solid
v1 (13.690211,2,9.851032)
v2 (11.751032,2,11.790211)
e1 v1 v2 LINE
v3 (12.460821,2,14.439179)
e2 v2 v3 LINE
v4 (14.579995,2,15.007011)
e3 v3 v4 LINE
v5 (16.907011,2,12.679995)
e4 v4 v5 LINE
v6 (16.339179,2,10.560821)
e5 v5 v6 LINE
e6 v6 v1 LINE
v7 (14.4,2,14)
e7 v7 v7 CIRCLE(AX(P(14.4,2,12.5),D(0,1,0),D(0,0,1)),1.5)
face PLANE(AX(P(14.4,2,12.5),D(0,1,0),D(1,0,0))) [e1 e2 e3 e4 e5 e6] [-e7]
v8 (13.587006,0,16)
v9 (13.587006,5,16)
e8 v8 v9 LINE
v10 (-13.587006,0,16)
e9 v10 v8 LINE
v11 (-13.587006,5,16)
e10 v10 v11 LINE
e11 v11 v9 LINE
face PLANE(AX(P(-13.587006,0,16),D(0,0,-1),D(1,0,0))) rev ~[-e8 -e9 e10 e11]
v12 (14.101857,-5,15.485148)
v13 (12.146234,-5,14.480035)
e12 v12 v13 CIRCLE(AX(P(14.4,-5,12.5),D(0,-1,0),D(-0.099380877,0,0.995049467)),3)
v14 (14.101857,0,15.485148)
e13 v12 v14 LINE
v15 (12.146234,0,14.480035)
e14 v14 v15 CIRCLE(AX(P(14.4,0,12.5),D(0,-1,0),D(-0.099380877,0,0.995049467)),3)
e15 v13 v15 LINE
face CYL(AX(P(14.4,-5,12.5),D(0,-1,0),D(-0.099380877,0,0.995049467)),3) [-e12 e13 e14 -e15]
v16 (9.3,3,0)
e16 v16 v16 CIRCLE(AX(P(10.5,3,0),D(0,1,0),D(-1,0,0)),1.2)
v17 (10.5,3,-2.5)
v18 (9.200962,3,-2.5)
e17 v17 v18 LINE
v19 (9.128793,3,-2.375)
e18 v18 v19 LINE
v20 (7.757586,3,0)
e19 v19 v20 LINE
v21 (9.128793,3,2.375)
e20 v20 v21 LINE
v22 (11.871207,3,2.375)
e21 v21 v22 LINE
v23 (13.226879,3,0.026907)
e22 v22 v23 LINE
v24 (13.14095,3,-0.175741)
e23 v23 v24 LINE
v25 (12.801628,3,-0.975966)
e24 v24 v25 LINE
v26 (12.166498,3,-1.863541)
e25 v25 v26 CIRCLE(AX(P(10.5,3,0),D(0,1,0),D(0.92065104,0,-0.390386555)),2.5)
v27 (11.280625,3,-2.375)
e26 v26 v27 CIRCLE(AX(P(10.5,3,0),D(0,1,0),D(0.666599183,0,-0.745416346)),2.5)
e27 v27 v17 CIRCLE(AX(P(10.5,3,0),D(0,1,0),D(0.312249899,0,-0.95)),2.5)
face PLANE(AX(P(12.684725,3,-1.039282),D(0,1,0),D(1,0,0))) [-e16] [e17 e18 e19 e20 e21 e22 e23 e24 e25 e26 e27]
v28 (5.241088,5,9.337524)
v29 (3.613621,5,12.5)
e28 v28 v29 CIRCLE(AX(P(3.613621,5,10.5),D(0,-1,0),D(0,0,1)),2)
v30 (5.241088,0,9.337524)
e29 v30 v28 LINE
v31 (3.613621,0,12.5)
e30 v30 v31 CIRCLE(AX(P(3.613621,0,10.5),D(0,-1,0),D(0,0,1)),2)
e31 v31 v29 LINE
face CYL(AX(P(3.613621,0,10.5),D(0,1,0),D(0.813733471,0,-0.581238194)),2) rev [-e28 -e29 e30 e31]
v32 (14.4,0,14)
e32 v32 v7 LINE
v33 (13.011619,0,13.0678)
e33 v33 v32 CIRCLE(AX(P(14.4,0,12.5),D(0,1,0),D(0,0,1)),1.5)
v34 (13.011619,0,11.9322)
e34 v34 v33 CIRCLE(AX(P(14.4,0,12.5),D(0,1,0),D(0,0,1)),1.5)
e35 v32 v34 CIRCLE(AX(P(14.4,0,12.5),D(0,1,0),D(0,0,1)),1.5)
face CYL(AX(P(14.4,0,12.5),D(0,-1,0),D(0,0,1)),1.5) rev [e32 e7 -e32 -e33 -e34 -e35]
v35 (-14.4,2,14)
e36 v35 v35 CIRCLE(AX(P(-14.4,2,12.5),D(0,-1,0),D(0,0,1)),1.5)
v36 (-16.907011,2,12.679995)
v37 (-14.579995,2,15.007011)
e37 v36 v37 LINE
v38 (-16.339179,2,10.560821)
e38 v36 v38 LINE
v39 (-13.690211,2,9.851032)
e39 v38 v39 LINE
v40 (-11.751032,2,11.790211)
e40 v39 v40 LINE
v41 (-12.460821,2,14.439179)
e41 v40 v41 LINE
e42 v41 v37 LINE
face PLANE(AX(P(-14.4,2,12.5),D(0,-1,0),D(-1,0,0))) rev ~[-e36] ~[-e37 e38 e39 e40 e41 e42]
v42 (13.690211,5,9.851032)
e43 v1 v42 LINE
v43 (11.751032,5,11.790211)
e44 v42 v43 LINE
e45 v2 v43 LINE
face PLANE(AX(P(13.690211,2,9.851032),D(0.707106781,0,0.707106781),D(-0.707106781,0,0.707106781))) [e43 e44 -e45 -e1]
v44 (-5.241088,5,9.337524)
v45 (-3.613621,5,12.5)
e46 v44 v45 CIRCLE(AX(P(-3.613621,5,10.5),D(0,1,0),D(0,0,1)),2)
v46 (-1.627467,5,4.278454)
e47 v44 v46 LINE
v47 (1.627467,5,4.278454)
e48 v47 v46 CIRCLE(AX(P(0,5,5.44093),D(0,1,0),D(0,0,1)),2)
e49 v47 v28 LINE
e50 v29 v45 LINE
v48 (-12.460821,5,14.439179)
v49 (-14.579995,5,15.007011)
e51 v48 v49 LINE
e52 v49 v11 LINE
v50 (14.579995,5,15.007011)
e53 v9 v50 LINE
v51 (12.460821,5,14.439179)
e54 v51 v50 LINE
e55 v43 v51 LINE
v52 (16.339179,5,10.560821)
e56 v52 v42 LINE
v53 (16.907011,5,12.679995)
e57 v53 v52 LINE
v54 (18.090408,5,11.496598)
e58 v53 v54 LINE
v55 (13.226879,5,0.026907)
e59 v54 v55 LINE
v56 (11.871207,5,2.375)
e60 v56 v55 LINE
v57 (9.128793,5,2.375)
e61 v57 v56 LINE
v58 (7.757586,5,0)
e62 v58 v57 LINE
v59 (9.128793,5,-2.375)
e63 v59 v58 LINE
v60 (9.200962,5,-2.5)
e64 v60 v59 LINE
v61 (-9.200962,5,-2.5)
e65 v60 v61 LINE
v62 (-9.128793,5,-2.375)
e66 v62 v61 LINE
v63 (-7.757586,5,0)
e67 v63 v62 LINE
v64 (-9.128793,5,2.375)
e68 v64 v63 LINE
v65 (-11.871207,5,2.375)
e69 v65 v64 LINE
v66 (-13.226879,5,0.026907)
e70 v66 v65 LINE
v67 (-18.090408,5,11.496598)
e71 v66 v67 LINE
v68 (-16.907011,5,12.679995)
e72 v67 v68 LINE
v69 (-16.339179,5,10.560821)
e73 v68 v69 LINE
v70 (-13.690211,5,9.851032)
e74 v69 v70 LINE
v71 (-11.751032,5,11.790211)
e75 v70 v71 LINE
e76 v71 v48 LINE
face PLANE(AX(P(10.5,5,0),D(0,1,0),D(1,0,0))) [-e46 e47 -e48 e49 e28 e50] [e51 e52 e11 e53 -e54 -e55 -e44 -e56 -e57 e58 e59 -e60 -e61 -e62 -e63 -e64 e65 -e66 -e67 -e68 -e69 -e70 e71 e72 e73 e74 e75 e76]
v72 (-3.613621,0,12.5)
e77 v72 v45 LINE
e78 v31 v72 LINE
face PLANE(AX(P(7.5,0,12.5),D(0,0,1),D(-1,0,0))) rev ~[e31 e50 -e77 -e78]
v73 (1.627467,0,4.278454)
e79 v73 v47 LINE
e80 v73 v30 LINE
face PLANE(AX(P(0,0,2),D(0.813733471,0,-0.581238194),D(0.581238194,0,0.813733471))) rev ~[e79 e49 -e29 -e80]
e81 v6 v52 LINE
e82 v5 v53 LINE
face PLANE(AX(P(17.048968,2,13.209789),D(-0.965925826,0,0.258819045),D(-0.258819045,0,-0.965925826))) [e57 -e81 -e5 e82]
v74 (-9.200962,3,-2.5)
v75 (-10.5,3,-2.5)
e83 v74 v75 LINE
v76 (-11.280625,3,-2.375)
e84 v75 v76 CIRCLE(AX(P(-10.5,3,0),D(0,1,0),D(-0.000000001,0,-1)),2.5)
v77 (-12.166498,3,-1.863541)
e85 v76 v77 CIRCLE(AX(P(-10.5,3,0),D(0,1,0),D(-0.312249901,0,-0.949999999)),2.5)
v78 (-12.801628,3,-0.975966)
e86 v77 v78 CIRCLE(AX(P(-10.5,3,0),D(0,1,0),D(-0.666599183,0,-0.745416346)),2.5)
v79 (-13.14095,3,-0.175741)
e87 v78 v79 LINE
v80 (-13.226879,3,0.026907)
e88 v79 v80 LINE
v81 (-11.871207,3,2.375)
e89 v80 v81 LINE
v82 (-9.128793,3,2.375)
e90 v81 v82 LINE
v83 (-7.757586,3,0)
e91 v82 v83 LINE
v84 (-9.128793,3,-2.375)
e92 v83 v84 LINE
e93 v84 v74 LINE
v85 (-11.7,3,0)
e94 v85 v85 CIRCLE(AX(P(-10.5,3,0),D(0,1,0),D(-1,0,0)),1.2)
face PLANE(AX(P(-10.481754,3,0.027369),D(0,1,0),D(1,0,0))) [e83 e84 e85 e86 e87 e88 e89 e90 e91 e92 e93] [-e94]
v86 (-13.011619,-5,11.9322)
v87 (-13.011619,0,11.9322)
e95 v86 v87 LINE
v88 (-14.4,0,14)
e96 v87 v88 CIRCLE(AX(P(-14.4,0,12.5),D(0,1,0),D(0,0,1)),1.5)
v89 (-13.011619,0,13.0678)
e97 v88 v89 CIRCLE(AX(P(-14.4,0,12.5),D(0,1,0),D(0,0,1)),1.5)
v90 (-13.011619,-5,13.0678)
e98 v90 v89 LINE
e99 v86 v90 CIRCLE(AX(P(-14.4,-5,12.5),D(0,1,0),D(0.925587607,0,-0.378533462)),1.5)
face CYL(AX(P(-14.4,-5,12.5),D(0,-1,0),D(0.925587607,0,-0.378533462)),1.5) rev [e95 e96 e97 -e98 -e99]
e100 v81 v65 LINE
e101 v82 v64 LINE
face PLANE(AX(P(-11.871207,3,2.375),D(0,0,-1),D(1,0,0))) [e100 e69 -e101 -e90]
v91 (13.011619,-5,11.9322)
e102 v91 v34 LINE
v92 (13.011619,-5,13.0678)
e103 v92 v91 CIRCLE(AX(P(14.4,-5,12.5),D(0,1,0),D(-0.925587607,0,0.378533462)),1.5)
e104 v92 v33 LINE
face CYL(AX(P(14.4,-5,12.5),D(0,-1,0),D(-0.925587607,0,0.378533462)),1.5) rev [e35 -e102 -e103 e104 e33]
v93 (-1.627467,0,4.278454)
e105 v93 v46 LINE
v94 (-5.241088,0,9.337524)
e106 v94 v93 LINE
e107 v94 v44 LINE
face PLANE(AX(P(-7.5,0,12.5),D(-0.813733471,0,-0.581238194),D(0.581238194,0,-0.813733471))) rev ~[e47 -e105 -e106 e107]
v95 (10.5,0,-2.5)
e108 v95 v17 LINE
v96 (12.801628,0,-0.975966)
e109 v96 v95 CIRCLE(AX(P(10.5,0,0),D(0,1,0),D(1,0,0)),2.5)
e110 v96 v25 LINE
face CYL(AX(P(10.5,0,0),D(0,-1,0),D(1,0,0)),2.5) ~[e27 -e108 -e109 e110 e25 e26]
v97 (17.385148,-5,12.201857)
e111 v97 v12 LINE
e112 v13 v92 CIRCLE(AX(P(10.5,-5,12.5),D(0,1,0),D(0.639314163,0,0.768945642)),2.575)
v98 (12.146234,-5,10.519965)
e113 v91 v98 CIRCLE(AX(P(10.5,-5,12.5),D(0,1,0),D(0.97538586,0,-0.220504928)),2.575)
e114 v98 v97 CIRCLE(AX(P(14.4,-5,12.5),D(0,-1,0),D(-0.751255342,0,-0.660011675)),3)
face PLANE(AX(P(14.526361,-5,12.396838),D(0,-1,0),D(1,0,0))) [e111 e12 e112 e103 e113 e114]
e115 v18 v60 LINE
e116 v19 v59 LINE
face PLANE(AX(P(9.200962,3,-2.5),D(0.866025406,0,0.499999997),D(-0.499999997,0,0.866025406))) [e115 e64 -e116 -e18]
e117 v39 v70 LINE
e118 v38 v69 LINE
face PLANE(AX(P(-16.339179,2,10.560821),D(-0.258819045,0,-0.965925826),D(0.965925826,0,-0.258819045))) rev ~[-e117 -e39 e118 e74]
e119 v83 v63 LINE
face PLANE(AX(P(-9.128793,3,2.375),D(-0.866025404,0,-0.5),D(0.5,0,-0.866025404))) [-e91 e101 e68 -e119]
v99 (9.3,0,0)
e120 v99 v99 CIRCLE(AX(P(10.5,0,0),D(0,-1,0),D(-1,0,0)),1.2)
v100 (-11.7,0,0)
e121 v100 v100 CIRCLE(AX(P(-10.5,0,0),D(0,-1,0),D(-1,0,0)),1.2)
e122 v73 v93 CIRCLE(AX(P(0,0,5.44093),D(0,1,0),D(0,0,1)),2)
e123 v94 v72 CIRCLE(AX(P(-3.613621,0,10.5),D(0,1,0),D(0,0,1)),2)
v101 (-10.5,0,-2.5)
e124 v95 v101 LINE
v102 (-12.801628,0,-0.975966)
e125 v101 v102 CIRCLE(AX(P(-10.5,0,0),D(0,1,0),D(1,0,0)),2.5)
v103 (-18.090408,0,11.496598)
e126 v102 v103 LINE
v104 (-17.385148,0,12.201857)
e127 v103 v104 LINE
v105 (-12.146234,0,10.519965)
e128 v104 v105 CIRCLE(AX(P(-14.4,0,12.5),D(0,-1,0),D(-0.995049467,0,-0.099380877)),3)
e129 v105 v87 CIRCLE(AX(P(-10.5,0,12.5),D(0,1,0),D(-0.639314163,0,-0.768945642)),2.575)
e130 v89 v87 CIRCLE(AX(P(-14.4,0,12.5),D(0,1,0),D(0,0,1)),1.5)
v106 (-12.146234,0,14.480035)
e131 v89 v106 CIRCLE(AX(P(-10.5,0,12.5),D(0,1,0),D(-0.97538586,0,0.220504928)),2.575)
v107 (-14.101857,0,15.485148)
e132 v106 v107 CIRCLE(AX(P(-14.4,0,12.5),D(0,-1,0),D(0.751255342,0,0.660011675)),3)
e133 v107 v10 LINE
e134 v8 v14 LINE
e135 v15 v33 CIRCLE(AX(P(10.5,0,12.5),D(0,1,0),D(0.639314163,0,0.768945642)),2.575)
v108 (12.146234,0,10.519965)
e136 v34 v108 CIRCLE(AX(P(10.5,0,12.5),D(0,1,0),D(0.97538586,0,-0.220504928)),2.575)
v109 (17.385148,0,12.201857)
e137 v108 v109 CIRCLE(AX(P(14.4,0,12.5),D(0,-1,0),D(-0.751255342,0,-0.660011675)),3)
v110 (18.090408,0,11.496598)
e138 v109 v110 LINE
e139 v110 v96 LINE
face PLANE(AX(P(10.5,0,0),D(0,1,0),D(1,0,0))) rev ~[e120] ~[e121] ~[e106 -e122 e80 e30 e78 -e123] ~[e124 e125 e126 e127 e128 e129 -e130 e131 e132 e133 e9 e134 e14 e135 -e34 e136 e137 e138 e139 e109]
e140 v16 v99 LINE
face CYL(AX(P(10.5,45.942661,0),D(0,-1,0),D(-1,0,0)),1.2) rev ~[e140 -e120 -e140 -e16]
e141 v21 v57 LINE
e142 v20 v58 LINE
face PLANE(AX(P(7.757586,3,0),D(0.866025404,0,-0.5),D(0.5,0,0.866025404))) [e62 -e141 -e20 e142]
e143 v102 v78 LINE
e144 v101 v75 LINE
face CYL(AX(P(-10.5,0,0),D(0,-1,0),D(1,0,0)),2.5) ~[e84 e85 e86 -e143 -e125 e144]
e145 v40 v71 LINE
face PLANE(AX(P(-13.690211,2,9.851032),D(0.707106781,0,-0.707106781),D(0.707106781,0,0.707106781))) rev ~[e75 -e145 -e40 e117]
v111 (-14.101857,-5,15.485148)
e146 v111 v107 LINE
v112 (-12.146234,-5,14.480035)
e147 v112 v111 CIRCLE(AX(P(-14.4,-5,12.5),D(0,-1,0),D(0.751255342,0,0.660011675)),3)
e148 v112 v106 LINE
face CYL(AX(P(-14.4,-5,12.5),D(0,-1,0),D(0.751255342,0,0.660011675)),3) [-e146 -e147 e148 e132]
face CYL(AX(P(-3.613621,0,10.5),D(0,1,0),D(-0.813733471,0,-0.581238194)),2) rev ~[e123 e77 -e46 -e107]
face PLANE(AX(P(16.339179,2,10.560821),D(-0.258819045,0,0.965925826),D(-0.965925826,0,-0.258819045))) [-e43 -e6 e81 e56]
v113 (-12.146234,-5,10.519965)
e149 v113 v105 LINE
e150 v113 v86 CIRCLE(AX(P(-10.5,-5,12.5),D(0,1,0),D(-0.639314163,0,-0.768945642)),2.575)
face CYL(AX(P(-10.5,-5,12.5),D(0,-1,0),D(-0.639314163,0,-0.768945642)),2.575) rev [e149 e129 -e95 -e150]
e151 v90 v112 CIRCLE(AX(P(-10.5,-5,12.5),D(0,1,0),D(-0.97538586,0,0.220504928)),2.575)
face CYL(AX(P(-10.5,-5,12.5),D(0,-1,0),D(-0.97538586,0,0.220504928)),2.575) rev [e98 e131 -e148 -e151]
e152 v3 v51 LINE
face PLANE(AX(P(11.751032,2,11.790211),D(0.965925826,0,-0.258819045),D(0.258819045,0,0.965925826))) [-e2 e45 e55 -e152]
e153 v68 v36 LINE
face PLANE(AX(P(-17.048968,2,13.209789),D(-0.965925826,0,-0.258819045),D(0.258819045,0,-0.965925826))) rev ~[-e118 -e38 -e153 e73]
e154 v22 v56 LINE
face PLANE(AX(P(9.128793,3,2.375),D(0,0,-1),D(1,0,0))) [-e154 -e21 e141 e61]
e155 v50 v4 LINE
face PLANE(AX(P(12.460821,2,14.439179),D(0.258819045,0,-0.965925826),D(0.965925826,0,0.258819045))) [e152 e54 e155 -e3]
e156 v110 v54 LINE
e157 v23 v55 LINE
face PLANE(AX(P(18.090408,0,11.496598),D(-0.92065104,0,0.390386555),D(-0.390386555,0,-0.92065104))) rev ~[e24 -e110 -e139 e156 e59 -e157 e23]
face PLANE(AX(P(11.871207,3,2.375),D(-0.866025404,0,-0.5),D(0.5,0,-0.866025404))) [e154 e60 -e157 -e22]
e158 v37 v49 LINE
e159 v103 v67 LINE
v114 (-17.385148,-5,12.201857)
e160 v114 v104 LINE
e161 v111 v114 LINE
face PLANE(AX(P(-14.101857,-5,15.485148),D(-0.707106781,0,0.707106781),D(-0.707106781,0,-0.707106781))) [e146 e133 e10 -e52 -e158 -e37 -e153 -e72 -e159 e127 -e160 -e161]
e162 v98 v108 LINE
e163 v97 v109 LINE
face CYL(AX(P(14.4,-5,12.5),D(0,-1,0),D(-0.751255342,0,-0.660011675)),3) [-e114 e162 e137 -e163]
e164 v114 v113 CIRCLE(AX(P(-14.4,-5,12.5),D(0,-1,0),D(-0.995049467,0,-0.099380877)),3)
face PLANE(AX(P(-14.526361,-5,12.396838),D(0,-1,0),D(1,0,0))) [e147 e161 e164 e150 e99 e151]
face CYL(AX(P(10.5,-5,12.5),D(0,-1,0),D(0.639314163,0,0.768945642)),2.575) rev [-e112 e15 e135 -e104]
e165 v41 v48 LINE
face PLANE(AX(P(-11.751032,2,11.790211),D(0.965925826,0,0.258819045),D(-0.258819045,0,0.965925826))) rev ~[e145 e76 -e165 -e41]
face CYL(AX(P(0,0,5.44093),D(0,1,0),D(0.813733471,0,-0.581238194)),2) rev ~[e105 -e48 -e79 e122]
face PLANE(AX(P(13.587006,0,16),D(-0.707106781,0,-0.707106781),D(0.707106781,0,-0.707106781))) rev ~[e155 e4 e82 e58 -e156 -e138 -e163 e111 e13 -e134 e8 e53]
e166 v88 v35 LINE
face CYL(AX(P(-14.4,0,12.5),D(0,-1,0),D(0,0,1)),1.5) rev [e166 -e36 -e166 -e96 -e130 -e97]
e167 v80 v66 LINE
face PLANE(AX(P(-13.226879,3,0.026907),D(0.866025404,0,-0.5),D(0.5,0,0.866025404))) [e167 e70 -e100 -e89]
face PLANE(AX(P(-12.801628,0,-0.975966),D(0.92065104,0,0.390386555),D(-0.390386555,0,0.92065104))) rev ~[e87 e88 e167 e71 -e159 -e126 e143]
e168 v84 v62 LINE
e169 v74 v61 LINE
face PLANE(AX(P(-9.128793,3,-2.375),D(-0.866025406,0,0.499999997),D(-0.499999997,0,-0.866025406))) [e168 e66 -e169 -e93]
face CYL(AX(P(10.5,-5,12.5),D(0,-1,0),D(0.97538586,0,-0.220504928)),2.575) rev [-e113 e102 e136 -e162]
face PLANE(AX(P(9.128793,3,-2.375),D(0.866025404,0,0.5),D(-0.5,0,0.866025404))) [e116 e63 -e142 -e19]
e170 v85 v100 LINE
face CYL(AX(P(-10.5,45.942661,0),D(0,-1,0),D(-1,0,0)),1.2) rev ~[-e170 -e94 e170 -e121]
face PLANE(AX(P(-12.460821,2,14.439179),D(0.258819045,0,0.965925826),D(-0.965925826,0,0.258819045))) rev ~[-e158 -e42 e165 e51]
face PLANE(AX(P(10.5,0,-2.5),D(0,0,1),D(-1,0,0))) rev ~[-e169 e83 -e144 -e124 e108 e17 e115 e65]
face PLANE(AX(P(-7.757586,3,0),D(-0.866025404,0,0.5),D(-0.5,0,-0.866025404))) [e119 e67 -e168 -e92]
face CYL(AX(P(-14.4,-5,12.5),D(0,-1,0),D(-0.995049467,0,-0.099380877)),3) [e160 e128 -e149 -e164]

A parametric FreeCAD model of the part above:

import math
import FreeCAD as App
import Part
import Sketcher

V = App.Vector
Q = App.Units.Quantity


def edges_at(feature, points):
    """Names of the edges that pass closest to the given points."""
    edges = feature.Shape.Edges
    near = lambda p: min(range(len(edges)), key=lambda i: edges[i].distToShape(Part.Vertex(*p))[0])
    return sorted({f"Edge{near(p) + 1}" for p in points})

doc = App.newDocument("Part")
params = doc.addObject("Spreadsheet::Sheet", "Params")
for row, (alias, value) in enumerate([
    ("sketch1_diameter", "3 mm"),
    ("sketch1_radius", "2.5 mm"),
    ("sketch1_width", "21 mm"),
    ("sketch1_width2", "15 mm"),
    ("pad1_length", "5 mm"),
    ("sketch2_diameter", "2.4 mm"),
    ("hole_diameter", "2.4 mm"),
    ("fillet_radius", "2 mm"),
    ("sketch3_radius", "3 mm"),
    ("sketch3_radius2", "1.5 mm"),
    ("pad2_length", "5 mm"),
    ("sketch4_diameter", "3 mm"),
    ("pocket1_length", "3 mm"),
    ("sketch5_diameter", "2.4 mm"),
    ("sketch5_radius", "2.5 mm"),
    ("pocket2_length", "2 mm"),
], start=1):
    params.set(f"A{row}", alias)
    params.set(f"B{row}", "=" + value)
    params.setAlias(f"B{row}", alias)

body = doc.addObject("PartDesign::Body", "Body")

sketch1 = body.newObject("Sketcher::SketchObject", "Sketch")
sketch1.AttachmentSupport = (doc.getObject("XZ_Plane"), [""])
sketch1.MapMode = "FlatFace"
sketch1.addGeometry(Part.LineSegment(V(10.5, -2.5, 0), V(-10.5, -2.5, 0)), False)
sketch1.addGeometry(Part.ArcOfCircle(Part.Circle(V(-10.5, 0, 0), V(0, 0, 1), 2.5), math.radians(-157), math.radians(-90)), False)
sketch1.addGeometry(Part.LineSegment(V(-12.8, -1, 0), V(-18.1, 11.5, 0)), False)
sketch1.addGeometry(Part.LineSegment(V(-18.1, 11.5, 0), V(-13.6, 16, 0)), False)
sketch1.addGeometry(Part.LineSegment(V(-13.6, 16, 0), V(13.6, 16, 0)), False)
sketch1.addGeometry(Part.LineSegment(V(13.6, 16, 0), V(18.1, 11.5, 0)), False)
sketch1.addGeometry(Part.LineSegment(V(18.1, 11.5, 0), V(12.8, -1, 0)), False)
sketch1.addGeometry(Part.ArcOfCircle(Part.Circle(V(10.5, 0, 0), V(0, 0, 1), 2.5), math.radians(-90), math.radians(-23)), False)
sketch1.addGeometry(Part.Circle(V(-14.4, 12.5, 0), V(0, 0, 1), 1.5), False)
sketch1.addGeometry(Part.Circle(V(14.4, 12.5, 0), V(0, 0, 1), 1.5), False)
sketch1.addGeometry(Part.LineSegment(V(7.5, 12.5, 0), V(-7.5, 12.5, 0)), False)
sketch1.addGeometry(Part.LineSegment(V(-7.5, 12.5, 0), V(0, 2, 0)), False)
sketch1.addGeometry(Part.LineSegment(V(0, 2, 0), V(7.5, 12.5, 0)), False)
sketch1.addConstraint(Sketcher.Constraint("Tangent", 0, 2, 1, 2))
sketch1.addConstraint(Sketcher.Constraint("Tangent", 1, 1, 2, 1))
sketch1.addConstraint(Sketcher.Constraint("Coincident", 2, 2, 3, 1))
sketch1.addConstraint(Sketcher.Constraint("Coincident", 3, 2, 4, 1))
sketch1.addConstraint(Sketcher.Constraint("Coincident", 4, 2, 5, 1))
sketch1.addConstraint(Sketcher.Constraint("Coincident", 5, 2, 6, 1))
sketch1.addConstraint(Sketcher.Constraint("Tangent", 6, 2, 7, 2))
sketch1.addConstraint(Sketcher.Constraint("Tangent", 7, 1, 0, 1))
sketch1.addConstraint(Sketcher.Constraint("Coincident", 10, 2, 11, 1))
sketch1.addConstraint(Sketcher.Constraint("Coincident", 11, 2, 12, 1))
sketch1.addConstraint(Sketcher.Constraint("Coincident", 12, 2, 10, 1))
sketch1.addConstraint(Sketcher.Constraint("Horizontal", 0))
sketch1.addConstraint(Sketcher.Constraint("Horizontal", 4))
sketch1.addConstraint(Sketcher.Constraint("Horizontal", 10))
sketch1.addConstraint(Sketcher.Constraint("Equal", 1, 7))
sketch1.addConstraint(Sketcher.Constraint("Equal", 8, 9))
sketch1.addConstraint(Sketcher.Constraint("Symmetric", 1, 3, 7, 3, -1, 1))
sketch1.addConstraint(Sketcher.Constraint("Symmetric", 8, 3, 9, 3, -2))
sketch1.addConstraint(Sketcher.Constraint("Symmetric", 2, 2, 5, 2, -2))
sketch1.addConstraint(Sketcher.Constraint("PointOnObject", 11, 2, -2))
sketch1.addConstraint(Sketcher.Constraint("Perpendicular", 3, 5))
sketch1.addConstraint(Sketcher.Constraint("Horizontal", 9, 3, 10, 2))
sketch1.addConstraint(Sketcher.Constraint("Equal", 3, 5))
sketch1.addConstraint(Sketcher.Constraint("Equal", 11, 12))
sketch1.addConstraint(Sketcher.Constraint("Diameter", 8, 3.0))
sketch1.addConstraint(Sketcher.Constraint("Radius", 1, 2.5))
sketch1.addConstraint(Sketcher.Constraint("DistanceX", 0, 2, 0, 1, 21.0))
sketch1.addConstraint(Sketcher.Constraint("DistanceX", 10, 2, 10, 1, 15.0))
sketch1.addConstraint(Sketcher.Constraint("DistanceY", -1, 1, 3, 2, 16.0))
sketch1.addConstraint(Sketcher.Constraint("DistanceY", -1, 1, 11, 2, 2.0))
sketch1.addConstraint(Sketcher.Constraint("DistanceY", 0, 2, 8, 3, 15.0))
sketch1.addConstraint(Sketcher.Constraint("DistanceX", 8, 3, -1, 1, 14.4))
sketch1.addConstraint(Sketcher.Constraint("DistanceX", 4, 1, 4, 2, 27.174012))
sketch1.addConstraint(Sketcher.Constraint("DistanceX", 2, 2, -1, 1, 18.090408))
sketch1.setExpression("Constraints[24]", "Params.sketch1_diameter")
sketch1.setExpression("Constraints[25]", "Params.sketch1_radius")
sketch1.setExpression("Constraints[26]", "Params.sketch1_width")
sketch1.setExpression("Constraints[27]", "Params.sketch1_width2")
pad1 = body.newObject("PartDesign::Pad", "Pad")
pad1.Profile = sketch1
pad1.setExpression("Length", "Params.pad1_length")
pad1.Reversed = True

sketch2 = body.newObject("Sketcher::SketchObject", "Sketch001")
sketch2.AttachmentSupport = (doc.getObject("XZ_Plane"), [""])
sketch2.MapMode = "FlatFace"
sketch2.AttachmentOffset = App.Placement(V(0, 0, -5), App.Rotation())
sketch2.addGeometry(Part.Circle(V(-10.5, 0, 0), V(0, 0, 1), 1.2), False)
sketch2.addGeometry(Part.Circle(V(10.5, 0, 0), V(0, 0, 1), 1.2), False)
sketch2.addConstraint(Sketcher.Constraint("Equal", 0, 1))
sketch2.addConstraint(Sketcher.Constraint("Symmetric", 0, 3, 1, 3, -1, 1))
sketch2.addConstraint(Sketcher.Constraint("PointOnObject", 0, 3, -1))
sketch2.addConstraint(Sketcher.Constraint("Diameter", 0, 2.4))
sketch2.addConstraint(Sketcher.Constraint("DistanceX", 0, 3, 1, 3, 21.0))
sketch2.setExpression("Constraints[3]", "Params.sketch2_diameter")
doc.recompute()
hole = body.newObject("PartDesign::Hole", "Hole")
hole.Profile = sketch2
hole.ThreadType = "None"
hole.setExpression("Diameter", "Params.hole_diameter")
hole.DepthType = "ThroughAll"
hole.Reversed = True
doc.recompute()

fillet = body.newObject("PartDesign::Fillet", "Fillet")
fillet.Base = (hole, edges_at(hole, [(0, 2.5, 2), (-7.5, 2.5, 12.5), (7.5, 2.5, 12.5)]))
fillet.setExpression("Radius", "Params.fillet_radius")

sketch3 = body.newObject("Sketcher::SketchObject", "Sketch002")
sketch3.AttachmentSupport = (doc.getObject("XZ_Plane"), [""])
sketch3.MapMode = "FlatFace"
sketch3.AttachmentOffset = App.Placement(V(0, 0, 5), App.Rotation())
sketch3.addGeometry(Part.LineSegment(V(-14.1, 15.5, 0), V(-17.4, 12.2, 0)), False)
sketch3.addGeometry(Part.ArcOfCircle(Part.Circle(V(-14.4, 12.5, 0), V(0, 0, 1), 3), math.radians(-174), math.radians(-41)), False)
sketch3.addGeometry(Part.ArcOfCircle(Part.Circle(V(-10.5, 12.5, 0), V(0, 0, 1), 2.6), math.radians(-167), math.radians(-130)), False)
sketch3.addGeometry(Part.ArcOfCircle(Part.Circle(V(-14.4, 12.5, 0), V(0, 0, 1), 1.5), math.radians(22), math.radians(338)), False)
sketch3.addGeometry(Part.ArcOfCircle(Part.Circle(V(-10.5, 12.5, 0), V(0, 0, 1), 2.6), math.radians(130), math.radians(167)), False)
sketch3.addGeometry(Part.ArcOfCircle(Part.Circle(V(-14.4, 12.5, 0), V(0, 0, 1), 3), math.radians(41), math.radians(84)), False)
sketch3.addGeometry(Part.ArcOfCircle(Part.Circle(V(14.4, 12.5, 0), V(0, 0, 1), 3), math.radians(-139), math.radians(-6)), False)
sketch3.addGeometry(Part.LineSegment(V(17.4, 12.2, 0), V(14.1, 15.5, 0)), False)
sketch3.addGeometry(Part.ArcOfCircle(Part.Circle(V(14.4, 12.5, 0), V(0, 0, 1), 3), math.radians(96), math.radians(139)), False)
sketch3.addGeometry(Part.ArcOfCircle(Part.Circle(V(10.5, 12.5, 0), V(0, 0, 1), 2.6), math.radians(13), math.radians(50)), False)
sketch3.addGeometry(Part.ArcOfCircle(Part.Circle(V(14.4, 12.5, 0), V(0, 0, 1), 1.5), math.radians(-158), math.radians(158)), False)
sketch3.addGeometry(Part.ArcOfCircle(Part.Circle(V(10.5, 12.5, 0), V(0, 0, 1), 2.6), math.radians(-50), math.radians(-13)), False)
sketch3.addConstraint(Sketcher.Constraint("Coincident", 0, 2, 1, 1))
sketch3.addConstraint(Sketcher.Constraint("Coincident", 1, 2, 2, 2))
sketch3.addConstraint(Sketcher.Constraint("Coincident", 2, 1, 3, 2))
sketch3.addConstraint(Sketcher.Constraint("Coincident", 3, 1, 4, 2))
sketch3.addConstraint(Sketcher.Constraint("Coincident", 4, 1, 5, 1))
sketch3.addConstraint(Sketcher.Constraint("Coincident", 5, 2, 0, 1))
sketch3.addConstraint(Sketcher.Constraint("Coincident", 6, 2, 7, 1))
sketch3.addConstraint(Sketcher.Constraint("Coincident", 7, 2, 8, 1))
sketch3.addConstraint(Sketcher.Constraint("Coincident", 8, 2, 9, 2))
sketch3.addConstraint(Sketcher.Constraint("Coincident", 9, 1, 10, 2))
sketch3.addConstraint(Sketcher.Constraint("Coincident", 10, 1, 11, 2))
sketch3.addConstraint(Sketcher.Constraint("Coincident", 11, 1, 6, 1))
sketch3.addConstraint(Sketcher.Constraint("Coincident", 3, 3, 1, 3))
sketch3.addConstraint(Sketcher.Constraint("Coincident", 4, 3, 2, 3))
sketch3.addConstraint(Sketcher.Constraint("Coincident", 5, 3, 1, 3))
sketch3.addConstraint(Sketcher.Constraint("Coincident", 8, 3, 6, 3))
sketch3.addConstraint(Sketcher.Constraint("Coincident", 10, 3, 6, 3))
sketch3.addConstraint(Sketcher.Constraint("Coincident", 11, 3, 9, 3))
sketch3.addConstraint(Sketcher.Constraint("Equal", 2, 4))
sketch3.addConstraint(Sketcher.Constraint("Equal", 1, 5))
sketch3.addConstraint(Sketcher.Constraint("Equal", 5, 6))
sketch3.addConstraint(Sketcher.Constraint("Equal", 6, 8))
sketch3.addConstraint(Sketcher.Constraint("Equal", 4, 9))
sketch3.addConstraint(Sketcher.Constraint("Equal", 3, 10))
sketch3.addConstraint(Sketcher.Constraint("Equal", 9, 11))
sketch3.addConstraint(Sketcher.Constraint("Symmetric", 1, 3, 6, 3, -2))
sketch3.addConstraint(Sketcher.Constraint("Symmetric", 2, 3, 9, 3, -2))
sketch3.addConstraint(Sketcher.Constraint("Perpendicular", 0, 7))
sketch3.addConstraint(Sketcher.Constraint("Horizontal", 1, 3, 2, 3))
sketch3.addConstraint(Sketcher.Constraint("Horizontal", 0, 2, 6, 2))
sketch3.addConstraint(Sketcher.Constraint("Horizontal", 5, 2, 7, 2))
sketch3.addConstraint(Sketcher.Constraint("Radius", 1, 3.0))
sketch3.addConstraint(Sketcher.Constraint("Radius", 3, 1.5))
sketch3.addConstraint(Sketcher.Constraint("Radius", 2, 2.575))
sketch3.addConstraint(Sketcher.Constraint("DistanceX", 2, 3, 9, 3, 21.0))
sketch3.addConstraint(Sketcher.Constraint("DistanceX", 1, 3, -1, 1, 14.4))
sketch3.addConstraint(Sketcher.Constraint("DistanceY", -1, 1, 1, 3, 12.5))
sketch3.addConstraint(Sketcher.Constraint("DistanceX", 0, 2, -1, 1, 17.385148))
sketch3.setExpression("Constraints[31]", "Params.sketch3_radius")
sketch3.setExpression("Constraints[32]", "Params.sketch3_radius2")
pad2 = body.newObject("PartDesign::Pad", "Pad001")
pad2.Profile = sketch3
pad2.setExpression("Length", "Params.pad2_length")
pad2.Reversed = True

sketch4 = body.newObject("Sketcher::SketchObject", "Sketch003")
sketch4.AttachmentSupport = (doc.getObject("XZ_Plane"), [""])
sketch4.MapMode = "FlatFace"
sketch4.AttachmentOffset = App.Placement(V(0, 0, -2), App.Rotation())
sketch4.addGeometry(Part.LineSegment(V(15.1, 15.1, 0), V(17, 13.2, 0)), False)
sketch4.addGeometry(Part.LineSegment(V(17, 13.2, 0), V(16.3, 10.6, 0)), False)
sketch4.addGeometry(Part.LineSegment(V(16.3, 10.6, 0), V(13.7, 9.9, 0)), False)
sketch4.addGeometry(Part.LineSegment(V(13.7, 9.9, 0), V(11.8, 11.8, 0)), False)
sketch4.addGeometry(Part.LineSegment(V(11.8, 11.8, 0), V(12.5, 14.4, 0)), False)
sketch4.addGeometry(Part.LineSegment(V(12.5, 14.4, 0), V(15.1, 15.1, 0)), False)
sketch4.addGeometry(Part.Circle(V(14.4, 12.5, 0), V(0, 0, 1), 1.5), False)
sketch4.addGeometry(Part.LineSegment(V(-15.1, 15.1, 0), V(-12.5, 14.4, 0)), False)
sketch4.addGeometry(Part.LineSegment(V(-12.5, 14.4, 0), V(-11.8, 11.8, 0)), False)
sketch4.addGeometry(Part.LineSegment(V(-11.8, 11.8, 0), V(-13.7, 9.9, 0)), False)
sketch4.addGeometry(Part.LineSegment(V(-13.7, 9.9, 0), V(-16.3, 10.6, 0)), False)
sketch4.addGeometry(Part.LineSegment(V(-16.3, 10.6, 0), V(-17, 13.2, 0)), False)
sketch4.addGeometry(Part.LineSegment(V(-17, 13.2, 0), V(-15.1, 15.1, 0)), False)
sketch4.addConstraint(Sketcher.Constraint("Coincident", 0, 2, 1, 1))
sketch4.addConstraint(Sketcher.Constraint("Coincident", 1, 2, 2, 1))
sketch4.addConstraint(Sketcher.Constraint("Coincident", 2, 2, 3, 1))
sketch4.addConstraint(Sketcher.Constraint("Coincident", 3, 2, 4, 1))
sketch4.addConstraint(Sketcher.Constraint("Coincident", 4, 2, 5, 1))
sketch4.addConstraint(Sketcher.Constraint("Coincident", 5, 2, 0, 1))
sketch4.addConstraint(Sketcher.Constraint("Coincident", 7, 2, 8, 1))
sketch4.addConstraint(Sketcher.Constraint("Coincident", 8, 2, 9, 1))
sketch4.addConstraint(Sketcher.Constraint("Coincident", 9, 2, 10, 1))
sketch4.addConstraint(Sketcher.Constraint("Coincident", 10, 2, 11, 1))
sketch4.addConstraint(Sketcher.Constraint("Coincident", 11, 2, 12, 1))
sketch4.addConstraint(Sketcher.Constraint("Coincident", 12, 2, 7, 1))
sketch4.addConstraint(Sketcher.Constraint("Symmetric", 4, 2, 7, 2, -2))
sketch4.addConstraint(Sketcher.Constraint("Symmetric", 3, 2, 8, 2, -2))
sketch4.addConstraint(Sketcher.Constraint("Symmetric", 2, 2, 9, 2, -2))
sketch4.addConstraint(Sketcher.Constraint("Symmetric", 1, 2, 10, 2, -2))
sketch4.addConstraint(Sketcher.Constraint("Symmetric", 0, 2, 11, 2, -2))
sketch4.addConstraint(Sketcher.Constraint("Symmetric", 5, 2, 12, 2, -2))
sketch4.addConstraint(Sketcher.Constraint("Parallel", 0, 3))
sketch4.addConstraint(Sketcher.Constraint("Parallel", 1, 4))
sketch4.addConstraint(Sketcher.Constraint("Parallel", 2, 5))
sketch4.addConstraint(Sketcher.Constraint("Perpendicular", 4, 7))
sketch4.addConstraint(Sketcher.Constraint("Perpendicular", 3, 9))
sketch4.addConstraint(Sketcher.Constraint("Equal", 0, 1))
sketch4.addConstraint(Sketcher.Constraint("Equal", 1, 2))
sketch4.addConstraint(Sketcher.Constraint("Equal", 2, 3))
sketch4.addConstraint(Sketcher.Constraint("Diameter", 6, 3.0))
sketch4.addConstraint(Sketcher.Constraint("Angle", 1, Q("-105 deg")))
sketch4.addConstraint(Sketcher.Constraint("DistanceX", -1, 1, 6, 3, 14.4))
sketch4.addConstraint(Sketcher.Constraint("DistanceY", -1, 1, 6, 3, 12.5))
sketch4.addConstraint(Sketcher.Constraint("DistanceX", 10, 2, 4, 2, 28.8))
sketch4.addConstraint(Sketcher.Constraint("DistanceX", -1, 1, 0, 2, 17.048968))
sketch4.addConstraint(Sketcher.Constraint("DistanceY", -1, 1, 0, 2, 13.209789))
sketch4.setExpression("Constraints[26]", "Params.sketch4_diameter")
pocket1 = body.newObject("PartDesign::Pocket", "Pocket")
pocket1.Profile = sketch4
pocket1.setExpression("Length", "Params.pocket1_length")

sketch5 = body.newObject("Sketcher::SketchObject", "Sketch004")
sketch5.AttachmentSupport = (doc.getObject("XZ_Plane"), [""])
sketch5.MapMode = "FlatFace"
sketch5.AttachmentOffset = App.Placement(V(0, 0, -3), App.Rotation())
sketch5.addGeometry(Part.LineSegment(V(-7.76, 0, 0), V(-9.13, -2.38, 0)), False)
sketch5.addGeometry(Part.LineSegment(V(-9.13, -2.38, 0), V(-9.2, -2.5, 0)), False)
sketch5.addGeometry(Part.LineSegment(V(-9.2, -2.5, 0), V(-10.5, -2.5, 0)), False)
sketch5.addGeometry(Part.ArcOfCircle(Part.Circle(V(-10.5, 0, 0), V(0, 0, 1), 2.5), math.radians(-108.19), math.radians(-90)), False)
sketch5.addGeometry(Part.ArcOfCircle(Part.Circle(V(-10.5, 0, 0), V(0, 0, 1), 2.5), math.radians(-132), math.radians(-108)), False)
sketch5.addGeometry(Part.ArcOfCircle(Part.Circle(V(-10.5, 0, 0), V(0, 0, 1), 2.5), math.radians(-157), math.radians(-132)), False)
sketch5.addGeometry(Part.LineSegment(V(-12.8, -0.98, 0), V(-13.14, -0.18, 0)), False)
sketch5.addGeometry(Part.LineSegment(V(-13.14, -0.18, 0), V(-13.23, 0.03, 0)), False)
sketch5.addGeometry(Part.LineSegment(V(-13.23, 0.03, 0), V(-11.87, 2.38, 0)), False)
sketch5.addGeometry(Part.LineSegment(V(-11.87, 2.38, 0), V(-9.13, 2.38, 0)), False)
sketch5.addGeometry(Part.LineSegment(V(-9.13, 2.38, 0), V(-7.76, 0, 0)), False)
sketch5.addGeometry(Part.Circle(V(-10.5, 0, 0), V(0, 0, 1), 1.2), False)
sketch5.addGeometry(Part.LineSegment(V(7.76, 0, 0), V(9.13, 2.38, 0)), False)
sketch5.addGeometry(Part.LineSegment(V(9.13, 2.38, 0), V(11.87, 2.38, 0)), False)
sketch5.addGeometry(Part.LineSegment(V(11.87, 2.38, 0), V(13.23, 0.03, 0)), False)
sketch5.addGeometry(Part.LineSegment(V(13.23, 0.03, 0), V(13.14, -0.18, 0)), False)
sketch5.addGeometry(Part.LineSegment(V(13.14, -0.18, 0), V(12.8, -0.98, 0)), False)
sketch5.addGeometry(Part.ArcOfCircle(Part.Circle(V(10.5, 0, 0), V(0, 0, 1), 2.5), math.radians(-48), math.radians(-23)), False)
sketch5.addGeometry(Part.ArcOfCircle(Part.Circle(V(10.5, 0, 0), V(0, 0, 1), 2.5), math.radians(-72), math.radians(-48)), False)
sketch5.addGeometry(Part.ArcOfCircle(Part.Circle(V(10.5, 0, 0), V(0, 0, 1), 2.5), math.radians(-90), math.radians(-71.81)), False)
sketch5.addGeometry(Part.LineSegment(V(10.5, -2.5, 0), V(9.2, -2.5, 0)), False)
sketch5.addGeometry(Part.LineSegment(V(9.2, -2.5, 0), V(9.13, -2.38, 0)), False)
sketch5.addGeometry(Part.LineSegment(V(9.13, -2.38, 0), V(7.76, 0, 0)), False)
sketch5.addGeometry(Part.Circle(V(10.5, 0, 0), V(0, 0, 1), 1.2), False)
sketch5.addConstraint(Sketcher.Constraint("Coincident", 0, 2, 1, 1))
sketch5.addConstraint(Sketcher.Constraint("Coincident", 1, 2, 2, 1))
sketch5.addConstraint(Sketcher.Constraint("Tangent", 2, 2, 3, 2))
sketch5.addConstraint(Sketcher.Constraint("Tangent", 3, 1, 4, 2))
sketch5.addConstraint(Sketcher.Constraint("Tangent", 4, 1, 5, 2))
sketch5.addConstraint(Sketcher.Constraint("Tangent", 5, 1, 6, 1))
sketch5.addConstraint(Sketcher.Constraint("Coincident", 6, 2, 7, 1))
sketch5.addConstraint(Sketcher.Constraint("Coincident", 7, 2, 8, 1))
sketch5.addConstraint(Sketcher.Constraint("Coincident", 8, 2, 9, 1))
sketch5.addConstraint(Sketcher.Constraint("Coincident", 9, 2, 10, 1))
sketch5.addConstraint(Sketcher.Constraint("Coincident", 10, 2, 0, 1))
sketch5.addConstraint(Sketcher.Constraint("Coincident", 12, 2, 13, 1))
sketch5.addConstraint(Sketcher.Constraint("Coincident", 13, 2, 14, 1))
sketch5.addConstraint(Sketcher.Constraint("Coincident", 14, 2, 15, 1))
sketch5.addConstraint(Sketcher.Constraint("Coincident", 15, 2, 16, 1))
sketch5.addConstraint(Sketcher.Constraint("Tangent", 16, 2, 17, 2))
sketch5.addConstraint(Sketcher.Constraint("Tangent", 17, 1, 18, 2))
sketch5.addConstraint(Sketcher.Constraint("Tangent", 18, 1, 19, 2))
sketch5.addConstraint(Sketcher.Constraint("Tangent", 19, 1, 20, 1))
sketch5.addConstraint(Sketcher.Constraint("Coincident", 20, 2, 21, 1))
sketch5.addConstraint(Sketcher.Constraint("Coincident", 21, 2, 22, 1))
sketch5.addConstraint(Sketcher.Constraint("Coincident", 22, 2, 12, 1))
sketch5.addConstraint(Sketcher.Constraint("Horizontal", 2))
sketch5.addConstraint(Sketcher.Constraint("Horizontal", 9))
sketch5.addConstraint(Sketcher.Constraint("Horizontal", 13))
sketch5.addConstraint(Sketcher.Constraint("Horizontal", 20))
sketch5.addConstraint(Sketcher.Constraint("Coincident", 5, 3, 3, 3))
sketch5.addConstraint(Sketcher.Constraint("Coincident", 11, 3, 3, 3))
sketch5.addConstraint(Sketcher.Constraint("Coincident", 19, 3, 17, 3))
sketch5.addConstraint(Sketcher.Constraint("Coincident", 23, 3, 17, 3))
sketch5.addConstraint(Sketcher.Constraint("Equal", 5, 17))
sketch5.addConstraint(Sketcher.Constraint("Equal", 11, 23))
sketch5.addConstraint(Sketcher.Constraint("Symmetric", 3, 3, 17, 3, -1, 1))
sketch5.addConstraint(Sketcher.Constraint("Symmetric", 0, 2, 12, 2, -1, 1))
sketch5.addConstraint(Sketcher.Constraint("Symmetric", 9, 2, 21, 2, -1, 1))
sketch5.addConstraint(Sketcher.Constraint("Symmetric", 10, 2, 22, 2, -1, 1))
sketch5.addConstraint(Sketcher.Constraint("Symmetric", 9, 2, 12, 2, -2))
sketch5.addConstraint(Sketcher.Constraint("Symmetric", 7, 2, 14, 2, -2))
sketch5.addConstraint(Sketcher.Constraint("Symmetric", 6, 2, 15, 2, -2))
sketch5.addConstraint(Sketcher.Constraint("Symmetric", 4, 1, 17, 1, -2))
sketch5.addConstraint(Sketcher.Constraint("PointOnObject", 10, 2, -1))
sketch5.addConstraint(Sketcher.Constraint("Parallel", 0, 1))
sketch5.addConstraint(Sketcher.Constraint("Parallel", 6, 7))
sketch5.addConstraint(Sketcher.Constraint("Parallel", 1, 8))
sketch5.addConstraint(Sketcher.Constraint("Parallel", 10, 14))
sketch5.addConstraint(Sketcher.Constraint("Parallel", 14, 21))
sketch5.addConstraint(Sketcher.Constraint("Horizontal", 0, 2, 3, 1))
sketch5.addConstraint(Sketcher.Constraint("Horizontal", 3, 1, 18, 1))
sketch5.addConstraint(Sketcher.Constraint("Diameter", 11, 2.4))
sketch5.addConstraint(Sketcher.Constraint("Radius", 3, 2.5))
sketch5.addConstraint(Sketcher.Constraint("Angle", 0, Q("-120 deg")))
sketch5.addConstraint(Sketcher.Constraint("DistanceX", 4, 3, 17, 3, 21.0))
sketch5.addConstraint(Sketcher.Constraint("DistanceY", 0, 2, -1, 1, 2.375))
sketch5.addConstraint(Sketcher.Constraint("DistanceX", 2, 2, 2, 1, 1.299038))
sketch5.addConstraint(Sketcher.Constraint("DistanceY", 4, 1, 6, 2, 1.6878))
sketch5.addConstraint(Sketcher.Constraint("DistanceX", 9, 1, 9, 2, 2.742414))
sketch5.addConstraint(Sketcher.Constraint("DistanceY", 4, 1, -1, 1, 1.863541))
sketch5.addConstraint(Sketcher.Constraint("DistanceX", 6, 2, -1, 1, 13.14095))
sketch5.setExpression("Constraints[48]", "Params.sketch5_diameter")
sketch5.setExpression("Constraints[49]", "Params.sketch5_radius")
pocket2 = body.newObject("PartDesign::Pocket", "Pocket001")
pocket2.Profile = sketch5
pocket2.setExpression("Length", "Params.pocket2_length")

doc.recompute()
